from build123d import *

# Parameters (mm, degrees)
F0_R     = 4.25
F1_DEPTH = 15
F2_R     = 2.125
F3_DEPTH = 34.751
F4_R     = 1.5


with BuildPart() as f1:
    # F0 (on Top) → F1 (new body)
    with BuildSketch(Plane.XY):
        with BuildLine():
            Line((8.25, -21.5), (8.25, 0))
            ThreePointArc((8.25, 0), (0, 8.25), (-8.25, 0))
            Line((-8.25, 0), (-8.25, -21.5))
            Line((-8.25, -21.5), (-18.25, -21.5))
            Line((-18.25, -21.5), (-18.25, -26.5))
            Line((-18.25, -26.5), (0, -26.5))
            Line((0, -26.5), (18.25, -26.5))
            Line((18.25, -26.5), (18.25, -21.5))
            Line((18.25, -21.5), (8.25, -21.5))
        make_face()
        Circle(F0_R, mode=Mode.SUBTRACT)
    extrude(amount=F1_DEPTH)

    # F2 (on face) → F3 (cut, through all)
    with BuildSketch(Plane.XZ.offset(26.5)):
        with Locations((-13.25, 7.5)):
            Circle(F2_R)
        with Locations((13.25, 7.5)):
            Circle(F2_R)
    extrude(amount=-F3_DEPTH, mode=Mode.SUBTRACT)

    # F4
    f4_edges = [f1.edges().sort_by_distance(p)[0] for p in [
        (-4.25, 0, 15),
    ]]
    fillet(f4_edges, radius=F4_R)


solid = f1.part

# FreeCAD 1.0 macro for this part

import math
import FreeCAD as App
import Part
import Sketcher
Q = App.Units.Quantity


def edges_at(feature, points):
    """Names of the edges that pass closest to the given points."""
    edges = feature.Shape.Edges
    near = lambda p: min(range(len(edges)), key=lambda i: edges[i].distToShape(Part.Vertex(*p))[0])
    return sorted({f"Edge{near(p) + 1}" for p in points})

doc = App.newDocument("Part")
body = doc.addObject("PartDesign::Body", "Body")

sketch1 = body.newObject("Sketcher::SketchObject", "Sketch")
sketch1.AttachmentSupport = (doc.getObject("XY_Plane"), [""])
sketch1.MapMode = "FlatFace"
sketch1.addGeometry([
    Part.LineSegment(App.Vector(8.2, -21.5, 0), App.Vector(8.2, 0, 0)),
    Part.ArcOfCircle(Part.Circle(App.Vector(0, 0, 0), App.Vector(0, 0, 1), 8.2), math.radians(0), math.radians(180)),
    Part.LineSegment(App.Vector(-8.2, 0, 0), App.Vector(-8.2, -21.5, 0)),
    Part.LineSegment(App.Vector(-8.2, -21.5, 0), App.Vector(-18.2, -21.5, 0)),
    Part.LineSegment(App.Vector(-18.2, -21.5, 0), App.Vector(-18.2, -26.5, 0)),
    Part.LineSegment(App.Vector(-18.2, -26.5, 0), App.Vector(18.2, -26.5, 0)),
    Part.LineSegment(App.Vector(18.2, -26.5, 0), App.Vector(18.2, -21.5, 0)),
    Part.LineSegment(App.Vector(18.2, -21.5, 0), App.Vector(8.2, -21.5, 0)),
    Part.Circle(App.Vector(0, 0, 0), App.Vector(0, 0, 1), 4.2),
], False)
sketch1.addConstraint([
    Sketcher.Constraint("Tangent", 0, 2, 1, 1),
    Sketcher.Constraint("Tangent", 1, 2, 2, 1),
    Sketcher.Constraint("Coincident", 2, 2, 3, 1),
    Sketcher.Constraint("Coincident", 3, 2, 4, 1),
    Sketcher.Constraint("Coincident", 4, 2, 5, 1),
    Sketcher.Constraint("Coincident", 5, 2, 6, 1),
    Sketcher.Constraint("Coincident", 6, 2, 7, 1),
    Sketcher.Constraint("Coincident", 7, 2, 0, 1),
    Sketcher.Constraint("Vertical", 0),
    Sketcher.Constraint("Vertical", 2),
    Sketcher.Constraint("Horizontal", 3),
    Sketcher.Constraint("Vertical", 4),
    Sketcher.Constraint("Horizontal", 5),
    Sketcher.Constraint("Vertical", 6),
    Sketcher.Constraint("Horizontal", 7),
    Sketcher.Constraint("Coincident", 1, 3, -1, 1),
    Sketcher.Constraint("Coincident", 8, 3, -1, 1),
    Sketcher.Constraint("Symmetric", 3, 2, 6, 2, -2),
    Sketcher.Constraint("Diameter", 8, Q("8.5 mm")),
    Sketcher.Constraint("DistanceX", 3, 2, 3, 1, Q("10 mm")),
    Sketcher.Constraint("DistanceY", 4, 2, 4, 1, Q("5 mm")),
    Sketcher.Constraint("Radius", 1, Q("8.25 mm")),
    Sketcher.Constraint("DistanceY", 0, 1, 0, 2, Q("21.5 mm")),
])
pad1 = body.newObject("PartDesign::Pad", "Pad")
pad1.Profile = sketch1
pad1.Length = 15

sketch2 = body.newObject("Sketcher::SketchObject", "Sketch001")
sketch2.AttachmentSupport = (doc.getObject("XZ_Plane"), [""])
sketch2.MapMode = "FlatFace"
sketch2.AttachmentOffset = App.Placement(App.Vector(0, 0, 26.5), App.Rotation())
sketch2.addGeometry([
    Part.Circle(App.Vector(-13.2, 7.5, 0), App.Vector(0, 0, 1), 2.1),
    Part.Circle(App.Vector(13.2, 7.5, 0), App.Vector(0, 0, 1), 2.1),
], False)
sketch2.addConstraint([
    Sketcher.Constraint("Equal", 0, 1),
    Sketcher.Constraint("Symmetric", 0, 3, 1, 3, -2),
    Sketcher.Constraint("Diameter", 0, Q("4.25 mm")),
    Sketcher.Constraint("DistanceY", -1, 1, 0, 3, Q("7.5 mm")),
    Sketcher.Constraint("DistanceX", 0, 3, 1, 3, Q("26.5 mm")),
])
pocket1 = body.newObject("PartDesign::Pocket", "Pocket")
pocket1.Profile = sketch2
pocket1.Type = "ThroughAll"
doc.recompute()

fillet = body.newObject("PartDesign::Fillet", "Fillet")
fillet.Base = (pocket1, edges_at(pocket1, [(-4.25, 0, 15)]))
fillet.Radius = 1.5

doc.recompute()
